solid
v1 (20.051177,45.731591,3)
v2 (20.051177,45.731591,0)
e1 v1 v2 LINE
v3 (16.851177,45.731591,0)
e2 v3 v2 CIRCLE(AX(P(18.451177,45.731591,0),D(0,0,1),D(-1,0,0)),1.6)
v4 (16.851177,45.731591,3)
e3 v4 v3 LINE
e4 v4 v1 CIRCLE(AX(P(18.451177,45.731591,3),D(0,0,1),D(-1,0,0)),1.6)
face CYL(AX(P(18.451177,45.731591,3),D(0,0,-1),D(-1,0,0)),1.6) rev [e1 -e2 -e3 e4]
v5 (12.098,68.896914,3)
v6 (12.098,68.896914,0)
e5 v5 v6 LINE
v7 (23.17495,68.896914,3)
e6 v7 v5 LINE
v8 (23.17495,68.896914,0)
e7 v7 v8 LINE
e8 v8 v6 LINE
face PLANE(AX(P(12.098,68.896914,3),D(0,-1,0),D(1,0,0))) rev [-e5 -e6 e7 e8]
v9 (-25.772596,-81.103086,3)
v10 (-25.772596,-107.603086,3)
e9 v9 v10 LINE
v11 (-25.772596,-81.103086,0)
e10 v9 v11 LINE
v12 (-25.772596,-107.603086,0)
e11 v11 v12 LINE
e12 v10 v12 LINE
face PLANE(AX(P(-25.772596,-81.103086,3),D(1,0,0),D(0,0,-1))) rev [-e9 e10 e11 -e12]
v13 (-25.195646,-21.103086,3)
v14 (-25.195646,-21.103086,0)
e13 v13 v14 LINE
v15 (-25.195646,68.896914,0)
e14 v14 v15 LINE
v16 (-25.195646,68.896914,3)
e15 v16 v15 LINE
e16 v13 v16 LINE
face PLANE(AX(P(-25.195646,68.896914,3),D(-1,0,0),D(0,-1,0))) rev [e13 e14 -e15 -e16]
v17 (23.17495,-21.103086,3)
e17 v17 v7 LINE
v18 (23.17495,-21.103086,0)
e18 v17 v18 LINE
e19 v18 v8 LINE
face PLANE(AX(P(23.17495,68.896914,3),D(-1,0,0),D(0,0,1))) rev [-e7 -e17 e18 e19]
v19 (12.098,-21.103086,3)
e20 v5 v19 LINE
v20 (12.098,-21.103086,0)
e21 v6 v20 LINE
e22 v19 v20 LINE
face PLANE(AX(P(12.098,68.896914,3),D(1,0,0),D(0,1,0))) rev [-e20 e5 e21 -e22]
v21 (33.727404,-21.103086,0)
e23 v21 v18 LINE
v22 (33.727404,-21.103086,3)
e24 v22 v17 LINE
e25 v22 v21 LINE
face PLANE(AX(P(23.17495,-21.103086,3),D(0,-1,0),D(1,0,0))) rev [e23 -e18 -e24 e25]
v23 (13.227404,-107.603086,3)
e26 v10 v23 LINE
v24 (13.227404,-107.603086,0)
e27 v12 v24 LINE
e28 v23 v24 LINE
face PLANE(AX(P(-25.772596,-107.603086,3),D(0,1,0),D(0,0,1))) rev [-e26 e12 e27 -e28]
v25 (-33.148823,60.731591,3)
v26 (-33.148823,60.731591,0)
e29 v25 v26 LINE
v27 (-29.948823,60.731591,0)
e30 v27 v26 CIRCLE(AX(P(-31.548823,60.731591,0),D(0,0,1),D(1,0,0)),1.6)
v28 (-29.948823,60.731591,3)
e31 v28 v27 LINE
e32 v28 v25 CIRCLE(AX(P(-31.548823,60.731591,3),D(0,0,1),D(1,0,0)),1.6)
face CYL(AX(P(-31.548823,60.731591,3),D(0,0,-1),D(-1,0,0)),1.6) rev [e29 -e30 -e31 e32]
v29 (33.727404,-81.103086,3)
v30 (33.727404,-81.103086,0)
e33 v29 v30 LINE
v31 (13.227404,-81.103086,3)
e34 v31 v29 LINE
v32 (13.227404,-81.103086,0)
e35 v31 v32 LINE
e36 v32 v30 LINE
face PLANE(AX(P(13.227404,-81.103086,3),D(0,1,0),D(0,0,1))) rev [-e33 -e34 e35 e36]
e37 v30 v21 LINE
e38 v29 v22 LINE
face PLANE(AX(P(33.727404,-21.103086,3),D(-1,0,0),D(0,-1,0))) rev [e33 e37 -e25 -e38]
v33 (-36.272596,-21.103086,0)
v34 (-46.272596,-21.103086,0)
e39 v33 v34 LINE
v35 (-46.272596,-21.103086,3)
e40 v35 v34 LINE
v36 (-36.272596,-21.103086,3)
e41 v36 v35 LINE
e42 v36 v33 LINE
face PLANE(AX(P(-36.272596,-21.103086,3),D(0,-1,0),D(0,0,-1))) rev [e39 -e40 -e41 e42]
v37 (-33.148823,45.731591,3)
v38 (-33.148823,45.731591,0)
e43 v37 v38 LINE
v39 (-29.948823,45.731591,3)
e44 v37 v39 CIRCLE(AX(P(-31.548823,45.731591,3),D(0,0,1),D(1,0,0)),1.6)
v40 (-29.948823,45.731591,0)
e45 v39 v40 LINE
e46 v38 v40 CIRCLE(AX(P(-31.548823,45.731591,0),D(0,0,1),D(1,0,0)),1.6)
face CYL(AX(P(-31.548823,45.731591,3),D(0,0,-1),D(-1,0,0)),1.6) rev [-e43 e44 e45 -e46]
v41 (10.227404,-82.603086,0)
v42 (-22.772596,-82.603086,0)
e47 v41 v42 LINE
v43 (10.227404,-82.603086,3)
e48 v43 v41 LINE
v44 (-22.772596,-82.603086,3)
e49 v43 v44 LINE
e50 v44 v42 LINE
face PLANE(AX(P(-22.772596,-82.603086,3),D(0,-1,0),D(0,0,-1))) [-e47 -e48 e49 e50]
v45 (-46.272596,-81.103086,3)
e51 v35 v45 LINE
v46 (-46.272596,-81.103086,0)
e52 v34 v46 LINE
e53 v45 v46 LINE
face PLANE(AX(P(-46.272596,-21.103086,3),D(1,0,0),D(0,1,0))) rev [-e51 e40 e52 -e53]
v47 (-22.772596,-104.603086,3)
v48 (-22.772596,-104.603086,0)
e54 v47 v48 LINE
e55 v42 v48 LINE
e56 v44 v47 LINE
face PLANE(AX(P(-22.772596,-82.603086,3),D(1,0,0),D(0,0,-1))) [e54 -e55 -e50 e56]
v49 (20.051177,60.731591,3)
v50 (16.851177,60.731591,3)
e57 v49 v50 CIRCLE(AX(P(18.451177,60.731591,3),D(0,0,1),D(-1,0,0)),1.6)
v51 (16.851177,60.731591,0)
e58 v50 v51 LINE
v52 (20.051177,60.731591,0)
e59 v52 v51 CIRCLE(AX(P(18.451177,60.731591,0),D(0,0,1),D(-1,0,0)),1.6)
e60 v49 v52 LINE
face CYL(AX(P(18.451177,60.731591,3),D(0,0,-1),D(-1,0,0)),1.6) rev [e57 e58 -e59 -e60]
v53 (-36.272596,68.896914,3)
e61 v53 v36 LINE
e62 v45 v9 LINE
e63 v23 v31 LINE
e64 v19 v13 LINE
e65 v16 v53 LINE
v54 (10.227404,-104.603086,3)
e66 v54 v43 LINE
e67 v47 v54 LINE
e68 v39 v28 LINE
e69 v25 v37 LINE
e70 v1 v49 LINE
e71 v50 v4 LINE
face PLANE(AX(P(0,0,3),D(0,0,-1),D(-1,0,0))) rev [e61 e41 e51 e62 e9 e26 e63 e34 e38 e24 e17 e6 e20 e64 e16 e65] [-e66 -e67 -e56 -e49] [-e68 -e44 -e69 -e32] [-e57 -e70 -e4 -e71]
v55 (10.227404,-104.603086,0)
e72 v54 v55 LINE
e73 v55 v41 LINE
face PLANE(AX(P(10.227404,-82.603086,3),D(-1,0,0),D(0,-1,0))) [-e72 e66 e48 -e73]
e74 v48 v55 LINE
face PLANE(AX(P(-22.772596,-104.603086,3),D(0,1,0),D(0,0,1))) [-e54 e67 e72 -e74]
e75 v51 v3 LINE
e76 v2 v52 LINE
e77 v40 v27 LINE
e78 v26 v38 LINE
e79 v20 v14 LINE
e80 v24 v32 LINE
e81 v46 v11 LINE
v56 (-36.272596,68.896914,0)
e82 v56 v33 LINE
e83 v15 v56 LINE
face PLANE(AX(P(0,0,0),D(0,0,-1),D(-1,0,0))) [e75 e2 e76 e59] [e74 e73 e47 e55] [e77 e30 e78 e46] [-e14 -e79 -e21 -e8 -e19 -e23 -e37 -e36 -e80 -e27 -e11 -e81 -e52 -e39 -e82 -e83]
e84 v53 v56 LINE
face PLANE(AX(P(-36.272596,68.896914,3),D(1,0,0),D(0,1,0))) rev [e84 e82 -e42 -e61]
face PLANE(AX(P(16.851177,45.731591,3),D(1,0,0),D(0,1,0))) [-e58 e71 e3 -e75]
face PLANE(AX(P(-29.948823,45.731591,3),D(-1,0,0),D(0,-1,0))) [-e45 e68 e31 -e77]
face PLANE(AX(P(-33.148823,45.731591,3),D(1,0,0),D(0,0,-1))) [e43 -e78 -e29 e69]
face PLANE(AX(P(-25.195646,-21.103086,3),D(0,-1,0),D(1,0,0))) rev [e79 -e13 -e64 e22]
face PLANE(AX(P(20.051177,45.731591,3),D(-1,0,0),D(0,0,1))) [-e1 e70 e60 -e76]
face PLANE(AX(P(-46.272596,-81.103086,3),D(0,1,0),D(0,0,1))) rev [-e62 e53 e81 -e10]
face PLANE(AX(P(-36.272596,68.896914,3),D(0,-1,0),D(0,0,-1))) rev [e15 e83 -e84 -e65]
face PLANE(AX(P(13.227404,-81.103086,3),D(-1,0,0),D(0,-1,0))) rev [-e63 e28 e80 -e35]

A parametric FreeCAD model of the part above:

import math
import FreeCAD as App
import Part
import Sketcher
from FreeCAD import Vector
Q = App.Units.Quantity

doc = App.newDocument("Part")
params = doc.addObject("Spreadsheet::Sheet", "Params")
for row, (alias, value) in enumerate([
    ("sketch1_radius", "1.6 mm"),
    ("sketch1_width", "10 mm"),
    ("sketch1_width2", "39 mm"),
    ("sketch1_width3", "33 mm"),
    ("sketch1_height", "90 mm"),
    ("pad1_length", "3 mm"),
], start=1):
    params.set(f"A{row}", alias)
    params.set(f"B{row}", "=" + value)
    params.setAlias(f"B{row}", alias)

body = doc.addObject("PartDesign::Body", "Body")

# Sketch on XY plane
sketch1 = body.newObject("Sketcher::SketchObject", "Sketch")
sketch1.AttachmentSupport = (doc.getObject("XY_Plane"), [""])
sketch1.MapMode = "FlatFace"
sketch1.addGeometry([
    Part.LineSegment(Vector(23.2, 68.9, 0), Vector(12.1, 68.9, 0)),  # 0
    Part.LineSegment(Vector(12.1, 68.9, 0), Vector(12.1, -21.1, 0)),  # 1
    Part.LineSegment(Vector(12.1, -21.1, 0), Vector(-25.2, -21.1, 0)),  # 2
    Part.LineSegment(Vector(-25.2, -21.1, 0), Vector(-25.2, 68.9, 0)),  # 3
    Part.LineSegment(Vector(-25.2, 68.9, 0), Vector(-36.3, 68.9, 0)),  # 4
    Part.LineSegment(Vector(-36.3, 68.9, 0), Vector(-36.3, -21.1, 0)),  # 5
    Part.LineSegment(Vector(-36.3, -21.1, 0), Vector(-46.3, -21.1, 0)),  # 6
    Part.LineSegment(Vector(-46.3, -21.1, 0), Vector(-46.3, -81.1, 0)),  # 7
    Part.LineSegment(Vector(-46.3, -81.1, 0), Vector(-25.8, -81.1, 0)),  # 8
    Part.LineSegment(Vector(-25.8, -81.1, 0), Vector(-25.8, -107.6, 0)),  # 9
    Part.LineSegment(Vector(-25.8, -107.6, 0), Vector(13.2, -107.6, 0)),  # 10
    Part.LineSegment(Vector(13.2, -107.6, 0), Vector(13.2, -81.1, 0)),  # 11
    Part.LineSegment(Vector(13.2, -81.1, 0), Vector(33.7, -81.1, 0)),  # 12
    Part.LineSegment(Vector(33.7, -81.1, 0), Vector(33.7, -21.1, 0)),  # 13
    Part.LineSegment(Vector(33.7, -21.1, 0), Vector(23.2, -21.1, 0)),  # 14
    Part.LineSegment(Vector(23.2, -21.1, 0), Vector(23.2, 68.9, 0)),  # 15
    Part.LineSegment(Vector(-22.8, -104.6, 0), Vector(-22.8, -82.6, 0)),  # 16
    Part.LineSegment(Vector(-22.8, -82.6, 0), Vector(10.2, -82.6, 0)),  # 17
    Part.LineSegment(Vector(10.2, -82.6, 0), Vector(10.2, -104.6, 0)),  # 18
    Part.LineSegment(Vector(10.2, -104.6, 0), Vector(-22.8, -104.6, 0)),  # 19
    Part.ArcOfCircle(Part.Circle(Vector(18.5, 45.7, 0), Vector(0, 0, 1), 1.6), math.radians(180), math.radians(360)),  # 20
    Part.LineSegment(Vector(16.9, 45.7, 0), Vector(16.9, 60.7, 0)),  # 21
    Part.ArcOfCircle(Part.Circle(Vector(18.5, 60.7, 0), Vector(0, 0, 1), 1.6), math.radians(0), math.radians(180)),  # 22
    Part.LineSegment(Vector(20.1, 60.7, 0), Vector(20.1, 45.7, 0)),  # 23
    Part.LineSegment(Vector(-33.1, 45.7, 0), Vector(-33.1, 60.7, 0)),  # 24
    Part.ArcOfCircle(Part.Circle(Vector(-31.5, 60.7, 0), Vector(0, 0, 1), 1.6), math.radians(0), math.radians(180)),  # 25
    Part.LineSegment(Vector(-29.9, 60.7, 0), Vector(-29.9, 45.7, 0)),  # 26
    Part.ArcOfCircle(Part.Circle(Vector(-31.5, 45.7, 0), Vector(0, 0, 1), 1.6), math.radians(180), math.radians(360)),  # 27
], False)
sketch1.addConstraint([
    Sketcher.Constraint("Coincident", 0, 2, 1, 1),
    Sketcher.Constraint("Coincident", 1, 2, 2, 1),
    Sketcher.Constraint("Coincident", 2, 2, 3, 1),
    Sketcher.Constraint("Coincident", 3, 2, 4, 1),
    Sketcher.Constraint("Coincident", 4, 2, 5, 1),
    Sketcher.Constraint("Coincident", 5, 2, 6, 1),
    Sketcher.Constraint("Coincident", 6, 2, 7, 1),
    Sketcher.Constraint("Coincident", 7, 2, 8, 1),
    Sketcher.Constraint("Coincident", 8, 2, 9, 1),
    Sketcher.Constraint("Coincident", 9, 2, 10, 1),
    Sketcher.Constraint("Coincident", 10, 2, 11, 1),
    Sketcher.Constraint("Coincident", 11, 2, 12, 1),
    Sketcher.Constraint("Coincident", 12, 2, 13, 1),
    Sketcher.Constraint("Coincident", 13, 2, 14, 1),
    Sketcher.Constraint("Coincident", 14, 2, 15, 1),
    Sketcher.Constraint("Coincident", 15, 2, 0, 1),
    Sketcher.Constraint("Coincident", 16, 2, 17, 1),
    Sketcher.Constraint("Coincident", 17, 2, 18, 1),
    Sketcher.Constraint("Coincident", 18, 2, 19, 1),
    Sketcher.Constraint("Coincident", 19, 2, 16, 1),
    Sketcher.Constraint("Tangent", 20, 1, 21, 1),
    Sketcher.Constraint("Tangent", 21, 2, 22, 2),
    Sketcher.Constraint("Tangent", 22, 1, 23, 1),
    Sketcher.Constraint("Tangent", 23, 2, 20, 2),
    Sketcher.Constraint("Tangent", 24, 2, 25, 2),
    Sketcher.Constraint("Tangent", 25, 1, 26, 1),
    Sketcher.Constraint("Tangent", 26, 2, 27, 2),
    Sketcher.Constraint("Tangent", 27, 1, 24, 1),
    Sketcher.Constraint("Horizontal", 0),
    Sketcher.Constraint("Vertical", 1),
    Sketcher.Constraint("Horizontal", 2),
    Sketcher.Constraint("Vertical", 3),
    Sketcher.Constraint("Horizontal", 4),
    Sketcher.Constraint("Vertical", 5),
    Sketcher.Constraint("Horizontal", 6),
    Sketcher.Constraint("Vertical", 7),
    Sketcher.Constraint("Horizontal", 8),
    Sketcher.Constraint("Vertical", 9),
    Sketcher.Constraint("Horizontal", 10),
    Sketcher.Constraint("Vertical", 11),
    Sketcher.Constraint("Horizontal", 12),
    Sketcher.Constraint("Vertical", 13),
    Sketcher.Constraint("Horizontal", 14),
    Sketcher.Constraint("Vertical", 15),
    Sketcher.Constraint("Vertical", 16),
    Sketcher.Constraint("Horizontal", 17),
    Sketcher.Constraint("Vertical", 18),
    Sketcher.Constraint("Horizontal", 19),
    Sketcher.Constraint("Vertical", 21),
    Sketcher.Constraint("Vertical", 23),
    Sketcher.Constraint("Vertical", 24),
    Sketcher.Constraint("Vertical", 26),
    Sketcher.Constraint("Equal", 22, 25),
    Sketcher.Constraint("Horizontal", 22, 3, 25, 3),
    Sketcher.Constraint("Horizontal", 20, 3, 27, 3),
    Sketcher.Constraint("Horizontal", 0, 2, 3, 2),
    Sketcher.Constraint("Horizontal", 2, 2, 5, 2),
    Sketcher.Constraint("Horizontal", 8, 2, 11, 2),
    Sketcher.Constraint("Horizontal", 6, 2, 13, 2),
    Sketcher.Constraint("Equal", 0, 4),
    Sketcher.Constraint("Equal", 8, 12),
    Sketcher.Constraint("Radius", 20, Q("1.6 mm")),
    Sketcher.Constraint("DistanceX", 6, 2, 6, 1, Q("10 mm")),
    Sketcher.Constraint("DistanceX", 10, 1, 10, 2, Q("39 mm")),
    Sketcher.Constraint("DistanceX", 17, 1, 17, 2, Q("33 mm")),
    Sketcher.Constraint("DistanceY", 1, 2, 1, 1, Q("90 mm")),
    Sketcher.Constraint("DistanceY", 7, 2, 7, 1, Q("60 mm")),
    Sketcher.Constraint("DistanceY", 16, 1, 16, 2, Q("22 mm")),
    Sketcher.Constraint("DistanceY", 21, 1, 21, 2, Q("15 mm")),
    Sketcher.Constraint("DistanceX", 8, 1, 8, 2, Q("20.5 mm")),
    Sketcher.Constraint("DistanceY", 9, 2, 9, 1, Q("26.5 mm")),
    Sketcher.Constraint("DistanceX", 25, 3, 22, 3, Q("50 mm")),
    Sketcher.Constraint("DistanceX", 8, 2, 16, 2, Q("3 mm")),
    Sketcher.Constraint("DistanceY", 9, 2, 16, 2, Q("25 mm")),
    Sketcher.Constraint("DistanceX", -1, 1, 0, 2, Q("12.098 mm")),
    Sketcher.Constraint("DistanceX", 0, 2, 0, 1, Q("11.07695 mm")),
    Sketcher.Constraint("DistanceX", 2, 2, 2, 1, Q("37.293646 mm")),
    Sketcher.Constraint("DistanceY", -1, 1, 20, 3, Q("45.731591 mm")),
    Sketcher.Constraint("DistanceX", -1, 1, 20, 3, Q("18.451177 mm")),
    Sketcher.Constraint("DistanceY", -1, 1, 0, 2, Q("68.896914 mm")),
])
sketch1.setExpression("Constraints[61]", "Params.sketch1_radius")
sketch1.setExpression("Constraints[62]", "Params.sketch1_width")
sketch1.setExpression("Constraints[63]", "Params.sketch1_width2")
sketch1.setExpression("Constraints[64]", "Params.sketch1_width3")
sketch1.setExpression("Constraints[65]", "Params.sketch1_height")
pad1 = body.newObject("PartDesign::Pad", "Pad")
pad1.Profile = sketch1
pad1.setExpression("Length", "Params.pad1_length")

doc.recompute()
